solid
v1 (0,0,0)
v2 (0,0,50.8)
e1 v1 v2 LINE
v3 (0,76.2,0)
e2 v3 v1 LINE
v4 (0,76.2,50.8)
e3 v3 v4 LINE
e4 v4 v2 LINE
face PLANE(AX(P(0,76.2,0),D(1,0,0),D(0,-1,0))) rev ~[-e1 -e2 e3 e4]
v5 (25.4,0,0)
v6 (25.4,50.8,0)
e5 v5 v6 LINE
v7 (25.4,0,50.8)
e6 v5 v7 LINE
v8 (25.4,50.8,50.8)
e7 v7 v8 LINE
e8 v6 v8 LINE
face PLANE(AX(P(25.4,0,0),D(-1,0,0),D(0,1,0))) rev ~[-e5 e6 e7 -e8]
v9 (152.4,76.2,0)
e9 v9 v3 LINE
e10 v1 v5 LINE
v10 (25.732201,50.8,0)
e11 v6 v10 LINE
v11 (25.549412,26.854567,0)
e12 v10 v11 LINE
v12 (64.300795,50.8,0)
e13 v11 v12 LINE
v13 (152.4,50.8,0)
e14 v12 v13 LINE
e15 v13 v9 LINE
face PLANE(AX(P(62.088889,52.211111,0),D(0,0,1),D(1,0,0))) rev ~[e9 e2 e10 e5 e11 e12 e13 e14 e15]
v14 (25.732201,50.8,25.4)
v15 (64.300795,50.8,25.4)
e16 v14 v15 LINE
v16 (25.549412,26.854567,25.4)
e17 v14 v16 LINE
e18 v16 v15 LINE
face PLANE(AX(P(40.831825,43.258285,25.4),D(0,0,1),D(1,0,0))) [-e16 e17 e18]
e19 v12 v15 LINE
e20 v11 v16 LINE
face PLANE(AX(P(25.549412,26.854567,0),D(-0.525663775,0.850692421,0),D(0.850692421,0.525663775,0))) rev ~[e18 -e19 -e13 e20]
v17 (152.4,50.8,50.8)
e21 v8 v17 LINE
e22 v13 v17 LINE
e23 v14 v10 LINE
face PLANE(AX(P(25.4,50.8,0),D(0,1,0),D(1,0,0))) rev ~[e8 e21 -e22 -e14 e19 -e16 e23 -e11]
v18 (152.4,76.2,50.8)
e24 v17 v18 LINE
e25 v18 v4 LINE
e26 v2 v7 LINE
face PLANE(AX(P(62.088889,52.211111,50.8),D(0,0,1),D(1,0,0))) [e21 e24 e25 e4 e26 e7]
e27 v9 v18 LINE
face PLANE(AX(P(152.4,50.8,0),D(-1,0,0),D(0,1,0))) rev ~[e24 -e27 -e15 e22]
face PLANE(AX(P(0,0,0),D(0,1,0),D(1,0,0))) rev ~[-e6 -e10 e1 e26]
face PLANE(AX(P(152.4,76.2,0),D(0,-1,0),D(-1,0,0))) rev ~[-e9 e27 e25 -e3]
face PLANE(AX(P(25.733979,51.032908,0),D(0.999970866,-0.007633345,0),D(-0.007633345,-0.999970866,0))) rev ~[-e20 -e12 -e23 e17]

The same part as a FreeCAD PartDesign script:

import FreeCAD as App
import Part
import Sketcher
Q = App.Units.Quantity


def add_polygon(sketch, points):
    """Adds a closed chain of lines whose ends are joined by coincident constraints."""
    first, n = sketch.GeometryCount, len(points)
    for a, b in zip(points, points[1:] + points[:1]):
        sketch.addGeometry(Part.LineSegment(App.Vector(*a, 0), App.Vector(*b, 0)), False)
    for i in range(n):
        sketch.addConstraint(Sketcher.Constraint("Coincident", first + i, 2, first + (i + 1) % n, 1))

doc = App.newDocument("Part")
body = doc.addObject("PartDesign::Body", "Body")

# Sketch on XY plane
sketch1 = body.newObject("Sketcher::SketchObject", "Sketch")
sketch1.AttachmentSupport = (doc.getObject("XY_Plane"), [""])
sketch1.MapMode = "FlatFace"
add_polygon(sketch1, [(0, 76.2), (0, 0), (25.4, 0), (25.4, 50.8), (152.4, 50.8), (152.4, 76.2)])  # lines 0-5
sketch1.addConstraint([
    Sketcher.Constraint("Vertical", 0),
    Sketcher.Constraint("Horizontal", 1),
    Sketcher.Constraint("Vertical", 2),
    Sketcher.Constraint("Horizontal", 3),
    Sketcher.Constraint("Vertical", 4),
    Sketcher.Constraint("Horizontal", 5),
    Sketcher.Constraint("Coincident", 0, 2, -1, 1),
    Sketcher.Constraint("Equal", 1, 4),
    Sketcher.Constraint("DistanceX", 1, 1, 1, 2, Q("1 in")),
    Sketcher.Constraint("DistanceX", 3, 1, 3, 2, Q("5 in")),
    Sketcher.Constraint("DistanceY", 0, 2, 0, 1, Q("3 in")),
])
pad1 = body.newObject("PartDesign::Pad", "Pad")
pad1.Profile = sketch1
pad1.Length = Q("2 in")

# Sketch on XY plane
sketch2 = body.newObject("Sketcher::SketchObject", "Sketch001")
sketch2.AttachmentSupport = (doc.getObject("XY_Plane"), [""])
sketch2.MapMode = "FlatFace"
add_polygon(sketch2, [(25.733979, 51.032908), (25.549412, 26.854567), (64.677715, 51.032908)])  # lines 0-2
sketch2.addConstraint([
    Sketcher.Constraint("Horizontal", 2),
    Sketcher.Constraint("Distance", 1, Q("45.995829 mm")),
    Sketcher.Constraint("DistanceX", 2, 2, 2, 1, Q("38.943736 mm")),
    Sketcher.Constraint("DistanceX", -1, 1, 0, 2, Q("25.549412 mm")),
    Sketcher.Constraint("DistanceX", -1, 1, 2, 2, Q("25.733979 mm")),
    Sketcher.Constraint("DistanceY", -1, 1, 0, 2, Q("26.854567 mm")),
])
pad2 = body.newObject("PartDesign::Pad", "Pad001")
pad2.Profile = sketch2
pad2.Length = Q("1 in")

doc.recompute()
